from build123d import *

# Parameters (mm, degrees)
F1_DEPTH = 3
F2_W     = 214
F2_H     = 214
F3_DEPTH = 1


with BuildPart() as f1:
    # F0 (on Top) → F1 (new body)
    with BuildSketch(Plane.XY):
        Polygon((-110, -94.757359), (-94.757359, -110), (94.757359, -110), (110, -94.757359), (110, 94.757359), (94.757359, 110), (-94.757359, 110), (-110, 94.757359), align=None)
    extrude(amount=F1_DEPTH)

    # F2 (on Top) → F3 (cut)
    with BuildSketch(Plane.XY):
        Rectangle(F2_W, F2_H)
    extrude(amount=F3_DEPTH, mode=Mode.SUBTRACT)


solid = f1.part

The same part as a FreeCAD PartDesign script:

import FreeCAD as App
import Part
import Sketcher
from FreeCAD import Vector
Q = App.Units.Quantity

doc = App.newDocument("Part")
params = doc.addObject("Spreadsheet::Sheet", "Params")
for row, (alias, value) in enumerate([
    ("pad1_length", "3 mm"),
    ("sketch2_width", "214 mm"),
    ("pocket1_length", "1 mm"),
], start=1):
    params.set(f"A{row}", alias)
    params.set(f"B{row}", "=" + value)
    params.setAlias(f"B{row}", alias)

body = doc.addObject("PartDesign::Body", "Body")

sketch1 = body.newObject("Sketcher::SketchObject", "Sketch")
sketch1.AttachmentSupport = (doc.getObject("XY_Plane"), [""])
sketch1.MapMode = "FlatFace"
sketch1.addGeometry([
    Part.LineSegment(Vector(-110, -95, 0), Vector(-95, -110, 0)),
    Part.LineSegment(Vector(-95, -110, 0), Vector(95, -110, 0)),
    Part.LineSegment(Vector(95, -110, 0), Vector(110, -95, 0)),
    Part.LineSegment(Vector(110, -95, 0), Vector(110, 95, 0)),
    Part.LineSegment(Vector(110, 95, 0), Vector(95, 110, 0)),
    Part.LineSegment(Vector(95, 110, 0), Vector(-95, 110, 0)),
    Part.LineSegment(Vector(-95, 110, 0), Vector(-110, 95, 0)),
    Part.LineSegment(Vector(-110, 95, 0), Vector(-110, -95, 0)),
], False)
sketch1.addConstraint([
    Sketcher.Constraint("Coincident", 0, 2, 1, 1),
    Sketcher.Constraint("Coincident", 1, 2, 2, 1),
    Sketcher.Constraint("Coincident", 2, 2, 3, 1),
    Sketcher.Constraint("Coincident", 3, 2, 4, 1),
    Sketcher.Constraint("Coincident", 4, 2, 5, 1),
    Sketcher.Constraint("Coincident", 5, 2, 6, 1),
    Sketcher.Constraint("Coincident", 6, 2, 7, 1),
    Sketcher.Constraint("Coincident", 7, 2, 0, 1),
    Sketcher.Constraint("Horizontal", 1),
    Sketcher.Constraint("Vertical", 3),
    Sketcher.Constraint("Horizontal", 5),
    Sketcher.Constraint("Vertical", 7),
    Sketcher.Constraint("Symmetric", 0, 2, 4, 2, -1, 1),
    Sketcher.Constraint("Symmetric", 2, 2, 6, 2, -1, 1),
    Sketcher.Constraint("Perpendicular", 0, 2),
    Sketcher.Constraint("Perpendicular", 2, 4),
    Sketcher.Constraint("Perpendicular", 4, 6),
    Sketcher.Constraint("Horizontal", 3, 2, 6, 2),
    Sketcher.Constraint("Vertical", 1, 2, 4, 2),
    Sketcher.Constraint("Equal", 5, 3),
    Sketcher.Constraint("DistanceY", 0, 2, -1, 1, Q("110 mm")),
    Sketcher.Constraint("Distance", 0, Q("21.55635 mm")),
])
pad1 = body.newObject("PartDesign::Pad", "Pad")
pad1.Profile = sketch1
pad1.setExpression("Length", "Params.pad1_length")

sketch2 = body.newObject("Sketcher::SketchObject", "Sketch001")
sketch2.AttachmentSupport = (doc.getObject("XY_Plane"), [""])
sketch2.MapMode = "FlatFace"
sketch2.addGeometry([
    Part.LineSegment(Vector(-107, 107, 0), Vector(-107, -107, 0)),
    Part.LineSegment(Vector(-107, -107, 0), Vector(107, -107, 0)),
    Part.LineSegment(Vector(107, -107, 0), Vector(107, 107, 0)),
    Part.LineSegment(Vector(107, 107, 0), Vector(-107, 107, 0)),
], False)
sketch2.addConstraint([
    Sketcher.Constraint("Coincident", 0, 2, 1, 1),
    Sketcher.Constraint("Coincident", 1, 2, 2, 1),
    Sketcher.Constraint("Coincident", 2, 2, 3, 1),
    Sketcher.Constraint("Coincident", 3, 2, 0, 1),
    Sketcher.Constraint("Vertical", 0),
    Sketcher.Constraint("Horizontal", 1),
    Sketcher.Constraint("Vertical", 2),
    Sketcher.Constraint("Horizontal", 3),
    Sketcher.Constraint("Symmetric", 0, 2, 2, 2, -1, 1),
    Sketcher.Constraint("Equal", 3, 0),
    Sketcher.Constraint("DistanceX", 1, 1, 1, 2, Q("214 mm")),
])
sketch2.setExpression("Constraints[10]", "Params.sketch2_width")
pocket1 = body.newObject("PartDesign::Pocket", "Pocket")
pocket1.Profile = sketch2
pocket1.setExpression("Length", "Params.pocket1_length")
pocket1.Reversed = True

doc.recompute()
